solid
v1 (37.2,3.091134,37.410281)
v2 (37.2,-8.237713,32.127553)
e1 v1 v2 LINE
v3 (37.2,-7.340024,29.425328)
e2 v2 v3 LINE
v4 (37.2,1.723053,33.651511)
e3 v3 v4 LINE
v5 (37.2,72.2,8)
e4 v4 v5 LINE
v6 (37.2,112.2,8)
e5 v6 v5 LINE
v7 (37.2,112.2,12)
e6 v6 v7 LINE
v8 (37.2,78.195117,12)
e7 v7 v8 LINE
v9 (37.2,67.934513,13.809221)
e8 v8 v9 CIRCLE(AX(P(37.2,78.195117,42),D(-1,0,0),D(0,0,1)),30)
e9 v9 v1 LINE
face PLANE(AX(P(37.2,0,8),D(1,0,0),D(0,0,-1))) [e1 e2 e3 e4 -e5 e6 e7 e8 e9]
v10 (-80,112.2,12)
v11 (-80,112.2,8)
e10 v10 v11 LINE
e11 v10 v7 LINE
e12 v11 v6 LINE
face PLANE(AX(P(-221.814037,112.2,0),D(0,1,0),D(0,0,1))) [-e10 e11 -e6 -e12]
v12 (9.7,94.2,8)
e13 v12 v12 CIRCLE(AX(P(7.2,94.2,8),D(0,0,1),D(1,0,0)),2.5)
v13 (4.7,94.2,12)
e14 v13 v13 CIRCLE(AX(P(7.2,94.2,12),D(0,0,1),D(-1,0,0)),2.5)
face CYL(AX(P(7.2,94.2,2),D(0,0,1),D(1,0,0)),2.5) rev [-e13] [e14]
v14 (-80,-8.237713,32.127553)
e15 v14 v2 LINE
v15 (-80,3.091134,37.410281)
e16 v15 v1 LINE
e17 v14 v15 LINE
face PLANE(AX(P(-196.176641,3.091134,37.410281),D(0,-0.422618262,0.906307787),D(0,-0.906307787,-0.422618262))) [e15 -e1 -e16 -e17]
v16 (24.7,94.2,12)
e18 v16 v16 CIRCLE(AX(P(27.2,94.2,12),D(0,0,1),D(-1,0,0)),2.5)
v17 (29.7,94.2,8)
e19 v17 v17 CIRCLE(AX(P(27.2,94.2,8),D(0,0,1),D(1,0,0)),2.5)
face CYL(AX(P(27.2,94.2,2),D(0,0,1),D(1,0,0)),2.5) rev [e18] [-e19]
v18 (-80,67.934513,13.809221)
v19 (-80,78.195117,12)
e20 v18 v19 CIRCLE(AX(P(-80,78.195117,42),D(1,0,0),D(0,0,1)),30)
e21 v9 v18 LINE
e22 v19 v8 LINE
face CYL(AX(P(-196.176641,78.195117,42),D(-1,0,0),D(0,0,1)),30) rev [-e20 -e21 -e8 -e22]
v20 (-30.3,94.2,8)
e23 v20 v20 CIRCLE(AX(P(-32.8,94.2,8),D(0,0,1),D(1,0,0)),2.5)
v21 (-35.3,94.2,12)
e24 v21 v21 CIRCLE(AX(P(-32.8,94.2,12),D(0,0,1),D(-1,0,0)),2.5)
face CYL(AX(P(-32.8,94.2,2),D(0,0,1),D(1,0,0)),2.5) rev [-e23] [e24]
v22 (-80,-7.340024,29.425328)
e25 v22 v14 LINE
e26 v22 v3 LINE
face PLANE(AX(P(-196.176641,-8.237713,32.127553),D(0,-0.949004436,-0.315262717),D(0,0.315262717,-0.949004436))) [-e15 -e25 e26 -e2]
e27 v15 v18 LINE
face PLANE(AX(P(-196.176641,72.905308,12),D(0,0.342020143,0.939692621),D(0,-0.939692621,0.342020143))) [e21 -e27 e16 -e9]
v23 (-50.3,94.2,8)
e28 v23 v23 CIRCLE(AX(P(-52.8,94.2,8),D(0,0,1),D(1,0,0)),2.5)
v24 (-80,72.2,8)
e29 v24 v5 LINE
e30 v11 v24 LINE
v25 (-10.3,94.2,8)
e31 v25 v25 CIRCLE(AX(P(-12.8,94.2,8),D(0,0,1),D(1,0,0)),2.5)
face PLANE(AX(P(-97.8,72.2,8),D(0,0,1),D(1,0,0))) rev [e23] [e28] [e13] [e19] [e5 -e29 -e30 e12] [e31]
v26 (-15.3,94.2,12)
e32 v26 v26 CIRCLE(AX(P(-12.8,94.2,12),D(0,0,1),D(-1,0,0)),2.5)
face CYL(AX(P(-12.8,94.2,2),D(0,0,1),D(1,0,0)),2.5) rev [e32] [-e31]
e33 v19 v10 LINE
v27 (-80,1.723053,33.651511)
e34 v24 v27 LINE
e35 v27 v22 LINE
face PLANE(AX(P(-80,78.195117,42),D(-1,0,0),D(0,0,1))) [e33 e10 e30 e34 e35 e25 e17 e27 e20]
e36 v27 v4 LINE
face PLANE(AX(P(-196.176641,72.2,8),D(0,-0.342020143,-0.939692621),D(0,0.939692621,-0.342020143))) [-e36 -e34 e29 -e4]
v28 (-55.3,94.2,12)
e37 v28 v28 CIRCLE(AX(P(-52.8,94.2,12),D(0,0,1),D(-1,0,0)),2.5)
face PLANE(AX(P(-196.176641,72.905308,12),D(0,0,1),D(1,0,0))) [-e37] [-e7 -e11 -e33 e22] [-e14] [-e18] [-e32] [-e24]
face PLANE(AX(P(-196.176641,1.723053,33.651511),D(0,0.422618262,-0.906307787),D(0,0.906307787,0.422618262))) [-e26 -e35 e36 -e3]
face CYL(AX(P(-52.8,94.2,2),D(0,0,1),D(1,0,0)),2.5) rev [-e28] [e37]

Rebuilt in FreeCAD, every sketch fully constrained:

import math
import FreeCAD as App
import Part
import Sketcher

V = App.Vector
Q = App.Units.Quantity


def edges_at(feature, points):
    """Names of the edges that pass closest to the given points."""
    edges = feature.Shape.Edges
    near = lambda p: min(range(len(edges)), key=lambda i: edges[i].distToShape(Part.Vertex(*p))[0])
    return sorted({f"Edge{near(p) + 1}" for p in points})

doc = App.newDocument("Part")
params = doc.addObject("Spreadsheet::Sheet", "Params")
for row, (alias, value) in enumerate([
    ("sketch1_diameter", "12 mm"),
    ("sketch1_diameter2", "3 mm"),
    ("sketch1_width", "109.4 mm"),
    ("pad1_length", "8 mm"),
    ("sketch2_width", "40 mm"),
    ("sketch2_height", "4 mm"),
    ("sketch2_length", "75 mm"),
    ("sketch2_length2", "10 mm"),
    ("sketch2_length3", "12.5 mm"),
    ("pad2_length", "109.4 mm"),
    ("fillet_radius", "30 mm"),
    ("sketch3_height", "8 mm"),
    ("sketch3_width", "149.4 mm"),
    ("pad3_length", "109.4 mm"),
    ("sketch4_height", "8 mm"),
    ("sketch4_width", "109.4 mm"),
    ("pocket1_length", "135 mm"),
    ("sketch5_width", "40 mm"),
    ("sketch5_height", "8 mm"),
    ("pocket2_length", "135 mm"),
    ("sketch6_diameter", "5 mm"),
    ("pocket3_length", "10 mm"),
    ("sketch7_radius", "30 mm"),
    ("sketch7_width", "40 mm"),
    ("sketch7_height", "4 mm"),
    ("sketch7_length", "75 mm"),
    ("sketch7_length2", "10 mm"),
    ("pad4_length", "7.8 mm"),
], start=1):
    params.set(f"A{row}", alias)
    params.set(f"B{row}", "=" + value)
    params.setAlias(f"B{row}", alias)

body = doc.addObject("PartDesign::Body", "Body")

# Sketch on XY plane
sketch1 = doc.addObject("Sketcher::SketchObject", "Sketch")
body.addObject(sketch1)
sketch1.AttachmentSupport = (doc.XY_Plane, [""])
sketch1.MapMode = "FlatFace"
sketch1.addGeometry([
    Part.LineSegment(V(-72.2, 72.2, 0), V(-72.2, -37.2, 0)),  # 0
    Part.LineSegment(V(-72.2, -37.2, 0), V(37.2, -37.2, 0)),  # 1
    Part.LineSegment(V(37.2, -37.2, 0), V(37.2, 72.2, 0)),  # 2
    Part.LineSegment(V(37.2, 72.2, 0), V(-72.2, 72.2, 0)),  # 3
    Part.Circle(V(0, 35, 0), V(0, 0, 1), 6),  # 4
    Part.Circle(V(17.5, 52.5, 0), V(0, 0, 1), 1.5),  # 5
    Part.Circle(V(17.5, 17.5, 0), V(0, 0, 1), 1.5),  # 6
    Part.Circle(V(-17.5, 52.5, 0), V(0, 0, 1), 1.5),  # 7
    Part.Circle(V(-52.8, -17.8, 0), V(0, 0, 1), 1.5),  # 8
    Part.Circle(V(-35, 0, 0), V(0, 0, 1), 6),  # 9
    Part.Circle(V(-17.5, -17.5, 0), V(0, 0, 1), 1.5),  # 10
    Part.Circle(V(17.5, -17.5, 0), V(0, 0, 1), 1.5),  # 11
    Part.Circle(V(0, 0, 0), V(0, 0, 1), 6),  # 12
    Part.Circle(V(-52.5, 17.5, 0), V(0, 0, 1), 1.5),  # 13
    Part.Circle(V(-35, 35, 0), V(0, 0, 1), 6),  # 14
    Part.Circle(V(-52.5, 52.5, 0), V(0, 0, 1), 1.5),  # 15
    Part.Circle(V(-17.5, 17.5, 0), V(0, 0, 1), 1.5),  # 16
], False)
sketch1.addConstraint([
    Sketcher.Constraint("Coincident", 0, 2, 1, 1),
    Sketcher.Constraint("Coincident", 1, 2, 2, 1),
    Sketcher.Constraint("Coincident", 2, 2, 3, 1),
    Sketcher.Constraint("Coincident", 3, 2, 0, 1),
    Sketcher.Constraint("Vertical", 0),
    Sketcher.Constraint("Horizontal", 1),
    Sketcher.Constraint("Vertical", 2),
    Sketcher.Constraint("Horizontal", 3),
    Sketcher.Constraint("Coincident", 12, 3, -1, 1),
    Sketcher.Constraint("Equal", 5, 6),
    Sketcher.Constraint("Equal", 6, 7),
    Sketcher.Constraint("Equal", 7, 8),
    Sketcher.Constraint("Equal", 4, 9),
    Sketcher.Constraint("Equal", 8, 10),
    Sketcher.Constraint("Equal", 10, 11),
    Sketcher.Constraint("Equal", 9, 12),
    Sketcher.Constraint("Equal", 11, 13),
    Sketcher.Constraint("Equal", 12, 14),
    Sketcher.Constraint("Equal", 13, 15),
    Sketcher.Constraint("Equal", 15, 16),
    Sketcher.Constraint("Symmetric", 6, 3, 10, 3, -1, 1),
    Sketcher.Constraint("Symmetric", 11, 3, 16, 3, -1, 1),
    Sketcher.Constraint("Symmetric", 5, 3, 7, 3, -2),
    Sketcher.Constraint("Symmetric", 10, 3, 11, 3, -2),
    Sketcher.Constraint("PointOnObject", 4, 3, -2),
    Sketcher.Constraint("PointOnObject", 9, 3, -1),
    Sketcher.Constraint("Horizontal", 6, 3, 13, 3),
    Sketcher.Constraint("Horizontal", 4, 3, 14, 3),
    Sketcher.Constraint("Horizontal", 7, 3, 15, 3),
    Sketcher.Constraint("Vertical", 5, 3, 6, 3),
    Sketcher.Constraint("Vertical", 9, 3, 14, 3),
    Sketcher.Constraint("Vertical", 13, 3, 15, 3),
    Sketcher.Constraint("Equal", 3, 0),
    Sketcher.Constraint("Diameter", 4, Q("12 mm")),
    Sketcher.Constraint("Diameter", 5, Q("3 mm")),
    Sketcher.Constraint("DistanceX", 1, 1, 1, 2, Q("109.4 mm")),
    Sketcher.Constraint("DistanceY", -1, 1, 4, 3, Q("35 mm")),
    Sketcher.Constraint("DistanceX", 9, 3, -1, 1, Q("35 mm")),
    Sketcher.Constraint("DistanceY", 6, 3, 5, 3, Q("35 mm")),
    Sketcher.Constraint("DistanceX", 7, 3, 5, 3, Q("35 mm")),
    Sketcher.Constraint("DistanceY", 10, 3, 6, 3, Q("35 mm")),
    Sketcher.Constraint("DistanceX", 13, 3, 7, 3, Q("35 mm")),
    Sketcher.Constraint("DistanceX", 0, 2, -1, 1, Q("72.2 mm")),
    Sketcher.Constraint("DistanceY", 0, 2, -1, 1, Q("37.2 mm")),
    Sketcher.Constraint("DistanceX", 8, 3, -1, 1, Q("52.809904 mm")),
    Sketcher.Constraint("DistanceY", 8, 3, -1, 1, Q("17.809904 mm")),
])
sketch1.setExpression("Constraints[33]", "Params.sketch1_diameter")
sketch1.setExpression("Constraints[34]", "Params.sketch1_diameter2")
sketch1.setExpression("Constraints[35]", "Params.sketch1_width")
pad1 = doc.addObject("PartDesign::Pad", "Pad")
body.addObject(pad1)
pad1.Profile = sketch1
pad1.setExpression("Length", "Params.pad1_length")
body2 = doc.addObject("PartDesign::Body", "Body001")

# Sketch on YZ plane
sketch2 = doc.addObject("Sketcher::SketchObject", "Sketch001")
body2.addObject(sketch2)
sketch2.AttachmentSupport = (doc.getObject("YZ_Plane001"), [""])
sketch2.MapMode = "FlatFace"
sketch2.AttachmentOffset = App.Placement(V(0, 0, 37.2), App.Rotation())
sketch2.addGeometry([
    Part.LineSegment(V(1.7, 33.7, 0), V(72.2, 8, 0)),  # 0
    Part.LineSegment(V(72.2, 8, 0), V(112.2, 8, 0)),  # 1
    Part.LineSegment(V(112.2, 8, 0), V(112.2, 12, 0)),  # 2
    Part.LineSegment(V(112.2, 12, 0), V(72.9, 12, 0)),  # 3
    Part.LineSegment(V(72.9, 12, 0), V(3.1, 37.4, 0)),  # 4
    Part.LineSegment(V(3.1, 37.4, 0), V(-8.2, 32.1, 0)),  # 5
    Part.LineSegment(V(-8.2, 32.1, 0), V(-7.3, 29.4, 0)),  # 6
    Part.LineSegment(V(-7.3, 29.4, 0), V(1.7, 33.7, 0)),  # 7
], False)
sketch2.addConstraint([
    Sketcher.Constraint("Coincident", 0, 2, 1, 1),
    Sketcher.Constraint("Coincident", 1, 2, 2, 1),
    Sketcher.Constraint("Coincident", 2, 2, 3, 1),
    Sketcher.Constraint("Coincident", 3, 2, 4, 1),
    Sketcher.Constraint("Coincident", 4, 2, 5, 1),
    Sketcher.Constraint("Coincident", 5, 2, 6, 1),
    Sketcher.Constraint("Coincident", 6, 2, 7, 1),
    Sketcher.Constraint("Coincident", 7, 2, 0, 1),
    Sketcher.Constraint("Horizontal", 1),
    Sketcher.Constraint("Vertical", 2),
    Sketcher.Constraint("Horizontal", 3),
    Sketcher.Constraint("Parallel", 0, 4),
    Sketcher.Constraint("Parallel", 5, 7),
    Sketcher.Constraint("DistanceX", 1, 1, 1, 2, Q("40 mm")),
    Sketcher.Constraint("DistanceY", 2, 1, 2, 2, Q("4 mm")),
    Sketcher.Constraint("Angle", 0, Q("-20 deg")),
    Sketcher.Constraint("Angle", 5, Q("-155 deg")),
    Sketcher.Constraint("Distance", 0, Q("75 mm")),
    Sketcher.Constraint("Distance", 7, Q("10 mm")),
    Sketcher.Constraint("DistanceY", -1, 1, 0, 2, Q("8 mm")),
    Sketcher.Constraint("Distance", 5, Q("12.5 mm")),
    Sketcher.Constraint("DistanceX", -1, 1, 0, 2, Q("72.2 mm")),
    Sketcher.Constraint("Distance", 6, Q("2.847431 mm")),
    Sketcher.Constraint("DistanceX", 3, 2, 3, 1, Q("39.294692 mm")),
])
sketch2.setExpression("Constraints[13]", "Params.sketch2_width")
sketch2.setExpression("Constraints[14]", "Params.sketch2_height")
sketch2.setExpression("Constraints[17]", "Params.sketch2_length")
sketch2.setExpression("Constraints[18]", "Params.sketch2_length2")
sketch2.setExpression("Constraints[20]", "Params.sketch2_length3")
pad2 = doc.addObject("PartDesign::Pad", "Pad001")
body2.addObject(pad2)
pad2.Profile = sketch2
pad2.setExpression("Length", "Params.pad2_length")
pad2.Reversed = True
doc.recompute()

fillet = doc.addObject("PartDesign::Fillet", "Fillet")
body2.addObject(fillet)
fillet.Base = (pad2, edges_at(pad2, [(-17.5, 72.905, 12)]))
fillet.setExpression("Radius", "Params.fillet_radius")
body.AllowCompound = True
doc.recompute()

boolean = doc.addObject("PartDesign::Boolean", "Boolean")
body.addObject(boolean)
boolean.Type = "Fuse"
boolean.addObjects([body2])

# Sketch on YZ plane
sketch3 = doc.addObject("Sketcher::SketchObject", "Sketch002")
body.addObject(sketch3)
sketch3.AttachmentSupport = (doc.YZ_Plane, [""])
sketch3.MapMode = "FlatFace"
sketch3.AttachmentOffset = App.Placement(V(0, 0, 37.2), App.Rotation())
sketch3.addGeometry([
    Part.LineSegment(V(112, 8, 0), V(-37, 8, 0)),
    Part.LineSegment(V(-37, 8, 0), V(-37, 0, 0)),
    Part.LineSegment(V(-37, 0, 0), V(112, 0, 0)),
    Part.LineSegment(V(112, 0, 0), V(112, 8, 0)),
], False)
sketch3.addConstraint([
    Sketcher.Constraint("Coincident", 0, 2, 1, 1),
    Sketcher.Constraint("Coincident", 1, 2, 2, 1),
    Sketcher.Constraint("Coincident", 2, 2, 3, 1),
    Sketcher.Constraint("Coincident", 3, 2, 0, 1),
    Sketcher.Constraint("Horizontal", 0),
    Sketcher.Constraint("Vertical", 1),
    Sketcher.Constraint("Horizontal", 2),
    Sketcher.Constraint("Vertical", 3),
    Sketcher.Constraint("PointOnObject", 1, 2, -1),
    Sketcher.Constraint("DistanceY", 1, 2, 1, 1, Q("8 mm")),
    Sketcher.Constraint("DistanceX", 0, 2, 0, 1, Q("149.4 mm")),
    Sketcher.Constraint("DistanceX", 0, 2, -1, 1, Q("37.2 mm")),
])
sketch3.setExpression("Constraints[9]", "Params.sketch3_height")
sketch3.setExpression("Constraints[10]", "Params.sketch3_width")
pad3 = doc.addObject("PartDesign::Pad", "Pad002")
body.addObject(pad3)
pad3.Profile = sketch3
pad3.setExpression("Length", "Params.pad3_length")
pad3.Reversed = True

# Sketch on YZ plane
sketch4 = doc.addObject("Sketcher::SketchObject", "Sketch003")
body.addObject(sketch4)
sketch4.AttachmentSupport = (doc.YZ_Plane, [""])
sketch4.MapMode = "FlatFace"
sketch4.AttachmentOffset = App.Placement(V(0, 0, 37.2), App.Rotation())
sketch4.addGeometry([
    Part.LineSegment(V(72, 8, 0), V(-37, 8, 0)),
    Part.LineSegment(V(-37, 8, 0), V(-37, 0, 0)),
    Part.LineSegment(V(-37, 0, 0), V(72, 0, 0)),
    Part.LineSegment(V(72, 0, 0), V(72, 8, 0)),
], False)
sketch4.addConstraint([
    Sketcher.Constraint("Coincident", 0, 2, 1, 1),
    Sketcher.Constraint("Coincident", 1, 2, 2, 1),
    Sketcher.Constraint("Coincident", 2, 2, 3, 1),
    Sketcher.Constraint("Coincident", 3, 2, 0, 1),
    Sketcher.Constraint("Horizontal", 0),
    Sketcher.Constraint("Vertical", 1),
    Sketcher.Constraint("Horizontal", 2),
    Sketcher.Constraint("Vertical", 3),
    Sketcher.Constraint("PointOnObject", 1, 2, -1),
    Sketcher.Constraint("DistanceY", 1, 2, 1, 1, Q("8 mm")),
    Sketcher.Constraint("DistanceX", 0, 2, 0, 1, Q("109.4 mm")),
    Sketcher.Constraint("DistanceX", 0, 2, -1, 1, Q("37.2 mm")),
])
sketch4.setExpression("Constraints[9]", "Params.sketch4_height")
sketch4.setExpression("Constraints[10]", "Params.sketch4_width")
pocket1 = doc.addObject("PartDesign::Pocket", "Pocket")
body.addObject(pocket1)
pocket1.Profile = sketch4
pocket1.setExpression("Length", "Params.pocket1_length")

# Sketch on YZ plane
sketch5 = doc.addObject("Sketcher::SketchObject", "Sketch004")
body.addObject(sketch5)
sketch5.AttachmentSupport = (doc.YZ_Plane, [""])
sketch5.MapMode = "FlatFace"
sketch5.AttachmentOffset = App.Placement(V(0, 0, 37.2), App.Rotation())
sketch5.addGeometry([
    Part.LineSegment(V(112, 8, 0), V(72, 8, 0)),
    Part.LineSegment(V(72, 8, 0), V(72, 0, 0)),
    Part.LineSegment(V(72, 0, 0), V(112, 0, 0)),
    Part.LineSegment(V(112, 0, 0), V(112, 8, 0)),
], False)
sketch5.addConstraint([
    Sketcher.Constraint("Coincident", 0, 2, 1, 1),
    Sketcher.Constraint("Coincident", 1, 2, 2, 1),
    Sketcher.Constraint("Coincident", 2, 2, 3, 1),
    Sketcher.Constraint("Coincident", 3, 2, 0, 1),
    Sketcher.Constraint("Horizontal", 0),
    Sketcher.Constraint("Vertical", 1),
    Sketcher.Constraint("Horizontal", 2),
    Sketcher.Constraint("Vertical", 3),
    Sketcher.Constraint("PointOnObject", 1, 2, -1),
    Sketcher.Constraint("DistanceX", 0, 2, 0, 1, Q("40 mm")),
    Sketcher.Constraint("DistanceY", 1, 2, 1, 1, Q("8 mm")),
    Sketcher.Constraint("DistanceX", -1, 1, 0, 2, Q("72.2 mm")),
])
sketch5.setExpression("Constraints[9]", "Params.sketch5_width")
sketch5.setExpression("Constraints[10]", "Params.sketch5_height")
pocket2 = doc.addObject("PartDesign::Pocket", "Pocket001")
body.addObject(pocket2)
pocket2.Profile = sketch5
pocket2.setExpression("Length", "Params.pocket2_length")

# Sketch on XY plane
sketch6 = doc.addObject("Sketcher::SketchObject", "Sketch005")
body.addObject(sketch6)
sketch6.AttachmentSupport = (doc.XY_Plane, [""])
sketch6.MapMode = "FlatFace"
sketch6.AttachmentOffset = App.Placement(V(0, 0, 12), App.Rotation())
sketch6.addGeometry([
    Part.Circle(V(-52.8, 94.2, 0), V(0, 0, 1), 2.5),  # 0
    Part.Circle(V(-32.8, 94.2, 0), V(0, 0, 1), 2.5),  # 1
    Part.Circle(V(-12.8, 94.2, 0), V(0, 0, 1), 2.5),  # 2
    Part.Circle(V(7.2, 94.2, 0), V(0, 0, 1), 2.5),  # 3
    Part.Circle(V(27.2, 94.2, 0), V(0, 0, 1), 2.5),  # 4
], False)
sketch6.addConstraint([
    Sketcher.Constraint("Equal", 0, 1),
    Sketcher.Constraint("Equal", 1, 2),
    Sketcher.Constraint("Equal", 2, 3),
    Sketcher.Constraint("Equal", 3, 4),
    Sketcher.Constraint("Horizontal", 0, 3, 1, 3),
    Sketcher.Constraint("Horizontal", 1, 3, 2, 3),
    Sketcher.Constraint("Horizontal", 2, 3, 3, 3),
    Sketcher.Constraint("Horizontal", 3, 3, 4, 3),
    Sketcher.Constraint("Diameter", 0, Q("5 mm")),
    Sketcher.Constraint("DistanceX", 0, 3, 1, 3, Q("20 mm")),
    Sketcher.Constraint("DistanceX", 1, 3, 2, 3, Q("20 mm")),
    Sketcher.Constraint("DistanceX", 2, 3, 3, 3, Q("20 mm")),
    Sketcher.Constraint("DistanceX", 3, 3, 4, 3, Q("20 mm")),
    Sketcher.Constraint("DistanceX", 0, 3, -1, 1, Q("52.8 mm")),
    Sketcher.Constraint("DistanceY", -1, 1, 0, 3, Q("94.2 mm")),
])
sketch6.setExpression("Constraints[8]", "Params.sketch6_diameter")
pocket3 = doc.addObject("PartDesign::Pocket", "Pocket002")
body.addObject(pocket3)
pocket3.Profile = sketch6
pocket3.setExpression("Length", "Params.pocket3_length")

# Sketch on YZ plane
sketch7 = doc.addObject("Sketcher::SketchObject", "Sketch006")
body.addObject(sketch7)
sketch7.AttachmentSupport = (doc.YZ_Plane, [""])
sketch7.MapMode = "FlatFace"
sketch7.AttachmentOffset = App.Placement(V(0, 0, -80), App.Rotation())
sketch7.addGeometry([
    Part.LineSegment(V(112.2, 12, 0), V(112.2, 8, 0)),  # 0
    Part.LineSegment(V(112.2, 8, 0), V(72.2, 8, 0)),  # 1
    Part.LineSegment(V(72.2, 8, 0), V(1.7, 33.7, 0)),  # 2
    Part.LineSegment(V(1.7, 33.7, 0), V(-7.3, 29.4, 0)),  # 3
    Part.LineSegment(V(-7.3, 29.4, 0), V(-8.2, 32.1, 0)),  # 4
    Part.LineSegment(V(-8.2, 32.1, 0), V(3.1, 37.4, 0)),  # 5
    Part.LineSegment(V(3.1, 37.4, 0), V(67.9, 13.8, 0)),  # 6
    Part.ArcOfCircle(Part.Circle(V(78.2, 42, 0), V(0, 0, 1), 30), math.radians(-110), math.radians(-90)),  # 7
    Part.LineSegment(V(78.2, 12, 0), V(112.2, 12, 0)),  # 8
], False)
sketch7.addConstraint([
    Sketcher.Constraint("Coincident", 0, 2, 1, 1),
    Sketcher.Constraint("Coincident", 1, 2, 2, 1),
    Sketcher.Constraint("Coincident", 2, 2, 3, 1),
    Sketcher.Constraint("Coincident", 3, 2, 4, 1),
    Sketcher.Constraint("Coincident", 4, 2, 5, 1),
    Sketcher.Constraint("Coincident", 5, 2, 6, 1),
    Sketcher.Constraint("Tangent", 6, 2, 7, 1),
    Sketcher.Constraint("Tangent", 7, 2, 8, 1),
    Sketcher.Constraint("Coincident", 8, 2, 0, 1),
    Sketcher.Constraint("Vertical", 0),
    Sketcher.Constraint("Horizontal", 1),
    Sketcher.Constraint("Horizontal", 8),
    Sketcher.Constraint("Parallel", 3, 5),
    Sketcher.Constraint("Parallel", 2, 6),
    Sketcher.Constraint("Radius", 7, Q("30 mm")),
    Sketcher.Constraint("DistanceX", 1, 2, 1, 1, Q("40 mm")),
    Sketcher.Constraint("DistanceY", 0, 2, 0, 1, Q("4 mm")),
    Sketcher.Constraint("Angle", 2, Q("160 deg")),
    Sketcher.Constraint("Angle", 3, Q("-155 deg")),
    Sketcher.Constraint("Distance", 2, Q("75 mm")),
    Sketcher.Constraint("Distance", 3, Q("10 mm")),
    Sketcher.Constraint("DistanceY", -1, 1, 7, 3, Q("42 mm")),
    Sketcher.Constraint("Distance", 5, Q("12.5 mm")),
    Sketcher.Constraint("DistanceX", -1, 1, 0, 2, Q("112.2 mm")),
    Sketcher.Constraint("Distance", 4, Q("2.847431 mm")),
    Sketcher.Constraint("DistanceX", 8, 1, 8, 2, Q("34.004883 mm")),
])
sketch7.setExpression("Constraints[14]", "Params.sketch7_radius")
sketch7.setExpression("Constraints[15]", "Params.sketch7_width")
sketch7.setExpression("Constraints[16]", "Params.sketch7_height")
sketch7.setExpression("Constraints[19]", "Params.sketch7_length")
sketch7.setExpression("Constraints[20]", "Params.sketch7_length2")
pad4 = doc.addObject("PartDesign::Pad", "Pad003")
body.addObject(pad4)
pad4.Profile = sketch7
pad4.setExpression("Length", "Params.pad4_length")

doc.recompute()
